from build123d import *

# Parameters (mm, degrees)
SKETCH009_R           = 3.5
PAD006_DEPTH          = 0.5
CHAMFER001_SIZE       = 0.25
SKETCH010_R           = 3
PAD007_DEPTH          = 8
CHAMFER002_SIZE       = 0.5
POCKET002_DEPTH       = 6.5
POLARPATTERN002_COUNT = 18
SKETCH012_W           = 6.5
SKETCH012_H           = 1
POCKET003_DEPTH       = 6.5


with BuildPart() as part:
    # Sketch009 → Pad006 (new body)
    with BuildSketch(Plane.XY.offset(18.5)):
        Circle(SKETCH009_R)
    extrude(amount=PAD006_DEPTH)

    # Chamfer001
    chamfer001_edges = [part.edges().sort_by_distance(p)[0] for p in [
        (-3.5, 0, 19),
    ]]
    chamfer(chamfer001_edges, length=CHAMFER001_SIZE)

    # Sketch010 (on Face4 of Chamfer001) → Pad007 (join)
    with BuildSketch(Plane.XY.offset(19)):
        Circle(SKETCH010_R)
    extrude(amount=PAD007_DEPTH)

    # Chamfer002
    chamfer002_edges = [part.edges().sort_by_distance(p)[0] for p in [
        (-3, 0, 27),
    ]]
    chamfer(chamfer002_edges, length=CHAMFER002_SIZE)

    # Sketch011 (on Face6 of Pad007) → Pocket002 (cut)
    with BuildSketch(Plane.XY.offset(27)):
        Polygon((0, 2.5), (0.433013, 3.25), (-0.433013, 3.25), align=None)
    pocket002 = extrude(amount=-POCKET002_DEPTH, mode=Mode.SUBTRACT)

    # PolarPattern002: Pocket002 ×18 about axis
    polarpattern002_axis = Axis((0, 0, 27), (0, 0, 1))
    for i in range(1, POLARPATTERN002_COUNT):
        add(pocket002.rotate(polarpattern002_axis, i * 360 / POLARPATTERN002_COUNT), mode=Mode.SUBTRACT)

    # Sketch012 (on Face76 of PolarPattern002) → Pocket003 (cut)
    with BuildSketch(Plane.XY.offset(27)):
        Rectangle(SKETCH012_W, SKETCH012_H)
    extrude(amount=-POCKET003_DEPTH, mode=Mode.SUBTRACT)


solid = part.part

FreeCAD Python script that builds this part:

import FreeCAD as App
import Part
import Sketcher
Q = App.Units.Quantity


def edges_at(feature, points):
    """Names of the edges that pass closest to the given points."""
    edges = feature.Shape.Edges
    near = lambda p: min(range(len(edges)), key=lambda i: edges[i].distToShape(Part.Vertex(*p))[0])
    return sorted({f"Edge{near(p) + 1}" for p in points})


def add_polygon(sketch, points):
    """Adds a closed chain of lines whose ends are joined by coincident constraints."""
    first, n = sketch.GeometryCount, len(points)
    for a, b in zip(points, points[1:] + points[:1]):
        sketch.addGeometry(Part.LineSegment(App.Vector(*a, 0), App.Vector(*b, 0)), False)
    for i in range(n):
        sketch.addConstraint(Sketcher.Constraint("Coincident", first + i, 2, first + (i + 1) % n, 1))

doc = App.newDocument("Part")
body = doc.addObject("PartDesign::Body", "Body")

# Sketch on XY plane
sketch1 = body.newObject("Sketcher::SketchObject", "Sketch")
sketch1.AttachmentSupport = (doc.getObject("XY_Plane"), [""])
sketch1.MapMode = "FlatFace"
sketch1.AttachmentOffset = App.Placement(App.Vector(0, 0, 18.5), App.Rotation())
sketch1.addGeometry(Part.Circle(App.Vector(0, 0, 0), App.Vector(0, 0, 1), 3.5), False)
sketch1.addConstraint(Sketcher.Constraint("Coincident", 0, 3, -1, 1))
sketch1.addConstraint(Sketcher.Constraint("Diameter", 0, 7.0))
pad1 = body.newObject("PartDesign::Pad", "Pad")
pad1.Profile = sketch1
pad1.Length = 0.5
doc.recompute()

chamfer = body.newObject("PartDesign::Chamfer", "Chamfer")
chamfer.Base = (pad1, edges_at(pad1, [(-3.5, 0, 19)]))
chamfer.Size = 0.25

# Sketch on XY plane
sketch2 = body.newObject("Sketcher::SketchObject", "Sketch001")
sketch2.AttachmentSupport = (doc.getObject("XY_Plane"), [""])
sketch2.MapMode = "FlatFace"
sketch2.AttachmentOffset = App.Placement(App.Vector(0, 0, 19), App.Rotation())
sketch2.addGeometry(Part.Circle(App.Vector(0, 0, 0), App.Vector(0, 0, 1), 3), False)
sketch2.addConstraint(Sketcher.Constraint("Coincident", 0, 3, -1, 1))
sketch2.addConstraint(Sketcher.Constraint("Diameter", 0, 6.0))
pad2 = body.newObject("PartDesign::Pad", "Pad001")
pad2.Profile = sketch2
pad2.Length = 8
doc.recompute()

chamfer2 = body.newObject("PartDesign::Chamfer", "Chamfer001")
chamfer2.Base = (pad2, edges_at(pad2, [(-3, 0, 27)]))
chamfer2.Size = 0.5

# Sketch on XY plane
sketch3 = body.newObject("Sketcher::SketchObject", "Sketch002")
sketch3.AttachmentSupport = (doc.getObject("XY_Plane"), [""])
sketch3.MapMode = "FlatFace"
sketch3.AttachmentOffset = App.Placement(App.Vector(0, 0, 27), App.Rotation())
add_polygon(sketch3, [(0, 2.5), (0.4, 3.2), (-0.4, 3.2)])  # lines 0-2
sketch3.addConstraint(Sketcher.Constraint("Horizontal", 1))
sketch3.addConstraint(Sketcher.Constraint("PointOnObject", 2, 2, -2))
sketch3.addConstraint(Sketcher.Constraint("Equal", 0, 2))
sketch3.addConstraint(Sketcher.Constraint("Angle", 0, Q("59.999983 deg")))
sketch3.addConstraint(Sketcher.Constraint("DistanceY", -1, 1, 2, 2, 2.5))
sketch3.addConstraint(Sketcher.Constraint("DistanceY", -1, 1, 0, 2, 3.25))
pocket1 = body.newObject("PartDesign::Pocket", "Pocket")
pocket1.Profile = sketch3
pocket1.Length = 6.5
doc.recompute()

polarpattern = body.newObject("PartDesign::PolarPattern", "PolarPattern")
polarpattern.Originals = [pocket1]
polarpattern.Axis = (doc.getObject("Z_Axis"), [""])
polarpattern.Angle = 360
polarpattern.Occurrences = 18
body.Tip = polarpattern

# Sketch on XY plane
sketch4 = body.newObject("Sketcher::SketchObject", "Sketch003")
sketch4.AttachmentSupport = (doc.getObject("XY_Plane"), [""])
sketch4.MapMode = "FlatFace"
sketch4.AttachmentOffset = App.Placement(App.Vector(0, 0, 27), App.Rotation())
add_polygon(sketch4, [(-3.2, 0.5), (-3.2, -0.5), (3.2, -0.5), (3.2, 0.5)])  # lines 0-3
sketch4.addConstraint(Sketcher.Constraint("Vertical", 0))
sketch4.addConstraint(Sketcher.Constraint("Horizontal", 1))
sketch4.addConstraint(Sketcher.Constraint("Vertical", 2))
sketch4.addConstraint(Sketcher.Constraint("Horizontal", 3))
sketch4.addConstraint(Sketcher.Constraint("Symmetric", 0, 2, 2, 2, -1, 1))
sketch4.addConstraint(Sketcher.Constraint("DistanceY", 0, 2, 0, 1, 1.0))
sketch4.addConstraint(Sketcher.Constraint("DistanceX", 1, 1, 1, 2, 6.5))
pocket2 = body.newObject("PartDesign::Pocket", "Pocket001")
pocket2.Profile = sketch4
pocket2.Length = 6.5

doc.recompute()
